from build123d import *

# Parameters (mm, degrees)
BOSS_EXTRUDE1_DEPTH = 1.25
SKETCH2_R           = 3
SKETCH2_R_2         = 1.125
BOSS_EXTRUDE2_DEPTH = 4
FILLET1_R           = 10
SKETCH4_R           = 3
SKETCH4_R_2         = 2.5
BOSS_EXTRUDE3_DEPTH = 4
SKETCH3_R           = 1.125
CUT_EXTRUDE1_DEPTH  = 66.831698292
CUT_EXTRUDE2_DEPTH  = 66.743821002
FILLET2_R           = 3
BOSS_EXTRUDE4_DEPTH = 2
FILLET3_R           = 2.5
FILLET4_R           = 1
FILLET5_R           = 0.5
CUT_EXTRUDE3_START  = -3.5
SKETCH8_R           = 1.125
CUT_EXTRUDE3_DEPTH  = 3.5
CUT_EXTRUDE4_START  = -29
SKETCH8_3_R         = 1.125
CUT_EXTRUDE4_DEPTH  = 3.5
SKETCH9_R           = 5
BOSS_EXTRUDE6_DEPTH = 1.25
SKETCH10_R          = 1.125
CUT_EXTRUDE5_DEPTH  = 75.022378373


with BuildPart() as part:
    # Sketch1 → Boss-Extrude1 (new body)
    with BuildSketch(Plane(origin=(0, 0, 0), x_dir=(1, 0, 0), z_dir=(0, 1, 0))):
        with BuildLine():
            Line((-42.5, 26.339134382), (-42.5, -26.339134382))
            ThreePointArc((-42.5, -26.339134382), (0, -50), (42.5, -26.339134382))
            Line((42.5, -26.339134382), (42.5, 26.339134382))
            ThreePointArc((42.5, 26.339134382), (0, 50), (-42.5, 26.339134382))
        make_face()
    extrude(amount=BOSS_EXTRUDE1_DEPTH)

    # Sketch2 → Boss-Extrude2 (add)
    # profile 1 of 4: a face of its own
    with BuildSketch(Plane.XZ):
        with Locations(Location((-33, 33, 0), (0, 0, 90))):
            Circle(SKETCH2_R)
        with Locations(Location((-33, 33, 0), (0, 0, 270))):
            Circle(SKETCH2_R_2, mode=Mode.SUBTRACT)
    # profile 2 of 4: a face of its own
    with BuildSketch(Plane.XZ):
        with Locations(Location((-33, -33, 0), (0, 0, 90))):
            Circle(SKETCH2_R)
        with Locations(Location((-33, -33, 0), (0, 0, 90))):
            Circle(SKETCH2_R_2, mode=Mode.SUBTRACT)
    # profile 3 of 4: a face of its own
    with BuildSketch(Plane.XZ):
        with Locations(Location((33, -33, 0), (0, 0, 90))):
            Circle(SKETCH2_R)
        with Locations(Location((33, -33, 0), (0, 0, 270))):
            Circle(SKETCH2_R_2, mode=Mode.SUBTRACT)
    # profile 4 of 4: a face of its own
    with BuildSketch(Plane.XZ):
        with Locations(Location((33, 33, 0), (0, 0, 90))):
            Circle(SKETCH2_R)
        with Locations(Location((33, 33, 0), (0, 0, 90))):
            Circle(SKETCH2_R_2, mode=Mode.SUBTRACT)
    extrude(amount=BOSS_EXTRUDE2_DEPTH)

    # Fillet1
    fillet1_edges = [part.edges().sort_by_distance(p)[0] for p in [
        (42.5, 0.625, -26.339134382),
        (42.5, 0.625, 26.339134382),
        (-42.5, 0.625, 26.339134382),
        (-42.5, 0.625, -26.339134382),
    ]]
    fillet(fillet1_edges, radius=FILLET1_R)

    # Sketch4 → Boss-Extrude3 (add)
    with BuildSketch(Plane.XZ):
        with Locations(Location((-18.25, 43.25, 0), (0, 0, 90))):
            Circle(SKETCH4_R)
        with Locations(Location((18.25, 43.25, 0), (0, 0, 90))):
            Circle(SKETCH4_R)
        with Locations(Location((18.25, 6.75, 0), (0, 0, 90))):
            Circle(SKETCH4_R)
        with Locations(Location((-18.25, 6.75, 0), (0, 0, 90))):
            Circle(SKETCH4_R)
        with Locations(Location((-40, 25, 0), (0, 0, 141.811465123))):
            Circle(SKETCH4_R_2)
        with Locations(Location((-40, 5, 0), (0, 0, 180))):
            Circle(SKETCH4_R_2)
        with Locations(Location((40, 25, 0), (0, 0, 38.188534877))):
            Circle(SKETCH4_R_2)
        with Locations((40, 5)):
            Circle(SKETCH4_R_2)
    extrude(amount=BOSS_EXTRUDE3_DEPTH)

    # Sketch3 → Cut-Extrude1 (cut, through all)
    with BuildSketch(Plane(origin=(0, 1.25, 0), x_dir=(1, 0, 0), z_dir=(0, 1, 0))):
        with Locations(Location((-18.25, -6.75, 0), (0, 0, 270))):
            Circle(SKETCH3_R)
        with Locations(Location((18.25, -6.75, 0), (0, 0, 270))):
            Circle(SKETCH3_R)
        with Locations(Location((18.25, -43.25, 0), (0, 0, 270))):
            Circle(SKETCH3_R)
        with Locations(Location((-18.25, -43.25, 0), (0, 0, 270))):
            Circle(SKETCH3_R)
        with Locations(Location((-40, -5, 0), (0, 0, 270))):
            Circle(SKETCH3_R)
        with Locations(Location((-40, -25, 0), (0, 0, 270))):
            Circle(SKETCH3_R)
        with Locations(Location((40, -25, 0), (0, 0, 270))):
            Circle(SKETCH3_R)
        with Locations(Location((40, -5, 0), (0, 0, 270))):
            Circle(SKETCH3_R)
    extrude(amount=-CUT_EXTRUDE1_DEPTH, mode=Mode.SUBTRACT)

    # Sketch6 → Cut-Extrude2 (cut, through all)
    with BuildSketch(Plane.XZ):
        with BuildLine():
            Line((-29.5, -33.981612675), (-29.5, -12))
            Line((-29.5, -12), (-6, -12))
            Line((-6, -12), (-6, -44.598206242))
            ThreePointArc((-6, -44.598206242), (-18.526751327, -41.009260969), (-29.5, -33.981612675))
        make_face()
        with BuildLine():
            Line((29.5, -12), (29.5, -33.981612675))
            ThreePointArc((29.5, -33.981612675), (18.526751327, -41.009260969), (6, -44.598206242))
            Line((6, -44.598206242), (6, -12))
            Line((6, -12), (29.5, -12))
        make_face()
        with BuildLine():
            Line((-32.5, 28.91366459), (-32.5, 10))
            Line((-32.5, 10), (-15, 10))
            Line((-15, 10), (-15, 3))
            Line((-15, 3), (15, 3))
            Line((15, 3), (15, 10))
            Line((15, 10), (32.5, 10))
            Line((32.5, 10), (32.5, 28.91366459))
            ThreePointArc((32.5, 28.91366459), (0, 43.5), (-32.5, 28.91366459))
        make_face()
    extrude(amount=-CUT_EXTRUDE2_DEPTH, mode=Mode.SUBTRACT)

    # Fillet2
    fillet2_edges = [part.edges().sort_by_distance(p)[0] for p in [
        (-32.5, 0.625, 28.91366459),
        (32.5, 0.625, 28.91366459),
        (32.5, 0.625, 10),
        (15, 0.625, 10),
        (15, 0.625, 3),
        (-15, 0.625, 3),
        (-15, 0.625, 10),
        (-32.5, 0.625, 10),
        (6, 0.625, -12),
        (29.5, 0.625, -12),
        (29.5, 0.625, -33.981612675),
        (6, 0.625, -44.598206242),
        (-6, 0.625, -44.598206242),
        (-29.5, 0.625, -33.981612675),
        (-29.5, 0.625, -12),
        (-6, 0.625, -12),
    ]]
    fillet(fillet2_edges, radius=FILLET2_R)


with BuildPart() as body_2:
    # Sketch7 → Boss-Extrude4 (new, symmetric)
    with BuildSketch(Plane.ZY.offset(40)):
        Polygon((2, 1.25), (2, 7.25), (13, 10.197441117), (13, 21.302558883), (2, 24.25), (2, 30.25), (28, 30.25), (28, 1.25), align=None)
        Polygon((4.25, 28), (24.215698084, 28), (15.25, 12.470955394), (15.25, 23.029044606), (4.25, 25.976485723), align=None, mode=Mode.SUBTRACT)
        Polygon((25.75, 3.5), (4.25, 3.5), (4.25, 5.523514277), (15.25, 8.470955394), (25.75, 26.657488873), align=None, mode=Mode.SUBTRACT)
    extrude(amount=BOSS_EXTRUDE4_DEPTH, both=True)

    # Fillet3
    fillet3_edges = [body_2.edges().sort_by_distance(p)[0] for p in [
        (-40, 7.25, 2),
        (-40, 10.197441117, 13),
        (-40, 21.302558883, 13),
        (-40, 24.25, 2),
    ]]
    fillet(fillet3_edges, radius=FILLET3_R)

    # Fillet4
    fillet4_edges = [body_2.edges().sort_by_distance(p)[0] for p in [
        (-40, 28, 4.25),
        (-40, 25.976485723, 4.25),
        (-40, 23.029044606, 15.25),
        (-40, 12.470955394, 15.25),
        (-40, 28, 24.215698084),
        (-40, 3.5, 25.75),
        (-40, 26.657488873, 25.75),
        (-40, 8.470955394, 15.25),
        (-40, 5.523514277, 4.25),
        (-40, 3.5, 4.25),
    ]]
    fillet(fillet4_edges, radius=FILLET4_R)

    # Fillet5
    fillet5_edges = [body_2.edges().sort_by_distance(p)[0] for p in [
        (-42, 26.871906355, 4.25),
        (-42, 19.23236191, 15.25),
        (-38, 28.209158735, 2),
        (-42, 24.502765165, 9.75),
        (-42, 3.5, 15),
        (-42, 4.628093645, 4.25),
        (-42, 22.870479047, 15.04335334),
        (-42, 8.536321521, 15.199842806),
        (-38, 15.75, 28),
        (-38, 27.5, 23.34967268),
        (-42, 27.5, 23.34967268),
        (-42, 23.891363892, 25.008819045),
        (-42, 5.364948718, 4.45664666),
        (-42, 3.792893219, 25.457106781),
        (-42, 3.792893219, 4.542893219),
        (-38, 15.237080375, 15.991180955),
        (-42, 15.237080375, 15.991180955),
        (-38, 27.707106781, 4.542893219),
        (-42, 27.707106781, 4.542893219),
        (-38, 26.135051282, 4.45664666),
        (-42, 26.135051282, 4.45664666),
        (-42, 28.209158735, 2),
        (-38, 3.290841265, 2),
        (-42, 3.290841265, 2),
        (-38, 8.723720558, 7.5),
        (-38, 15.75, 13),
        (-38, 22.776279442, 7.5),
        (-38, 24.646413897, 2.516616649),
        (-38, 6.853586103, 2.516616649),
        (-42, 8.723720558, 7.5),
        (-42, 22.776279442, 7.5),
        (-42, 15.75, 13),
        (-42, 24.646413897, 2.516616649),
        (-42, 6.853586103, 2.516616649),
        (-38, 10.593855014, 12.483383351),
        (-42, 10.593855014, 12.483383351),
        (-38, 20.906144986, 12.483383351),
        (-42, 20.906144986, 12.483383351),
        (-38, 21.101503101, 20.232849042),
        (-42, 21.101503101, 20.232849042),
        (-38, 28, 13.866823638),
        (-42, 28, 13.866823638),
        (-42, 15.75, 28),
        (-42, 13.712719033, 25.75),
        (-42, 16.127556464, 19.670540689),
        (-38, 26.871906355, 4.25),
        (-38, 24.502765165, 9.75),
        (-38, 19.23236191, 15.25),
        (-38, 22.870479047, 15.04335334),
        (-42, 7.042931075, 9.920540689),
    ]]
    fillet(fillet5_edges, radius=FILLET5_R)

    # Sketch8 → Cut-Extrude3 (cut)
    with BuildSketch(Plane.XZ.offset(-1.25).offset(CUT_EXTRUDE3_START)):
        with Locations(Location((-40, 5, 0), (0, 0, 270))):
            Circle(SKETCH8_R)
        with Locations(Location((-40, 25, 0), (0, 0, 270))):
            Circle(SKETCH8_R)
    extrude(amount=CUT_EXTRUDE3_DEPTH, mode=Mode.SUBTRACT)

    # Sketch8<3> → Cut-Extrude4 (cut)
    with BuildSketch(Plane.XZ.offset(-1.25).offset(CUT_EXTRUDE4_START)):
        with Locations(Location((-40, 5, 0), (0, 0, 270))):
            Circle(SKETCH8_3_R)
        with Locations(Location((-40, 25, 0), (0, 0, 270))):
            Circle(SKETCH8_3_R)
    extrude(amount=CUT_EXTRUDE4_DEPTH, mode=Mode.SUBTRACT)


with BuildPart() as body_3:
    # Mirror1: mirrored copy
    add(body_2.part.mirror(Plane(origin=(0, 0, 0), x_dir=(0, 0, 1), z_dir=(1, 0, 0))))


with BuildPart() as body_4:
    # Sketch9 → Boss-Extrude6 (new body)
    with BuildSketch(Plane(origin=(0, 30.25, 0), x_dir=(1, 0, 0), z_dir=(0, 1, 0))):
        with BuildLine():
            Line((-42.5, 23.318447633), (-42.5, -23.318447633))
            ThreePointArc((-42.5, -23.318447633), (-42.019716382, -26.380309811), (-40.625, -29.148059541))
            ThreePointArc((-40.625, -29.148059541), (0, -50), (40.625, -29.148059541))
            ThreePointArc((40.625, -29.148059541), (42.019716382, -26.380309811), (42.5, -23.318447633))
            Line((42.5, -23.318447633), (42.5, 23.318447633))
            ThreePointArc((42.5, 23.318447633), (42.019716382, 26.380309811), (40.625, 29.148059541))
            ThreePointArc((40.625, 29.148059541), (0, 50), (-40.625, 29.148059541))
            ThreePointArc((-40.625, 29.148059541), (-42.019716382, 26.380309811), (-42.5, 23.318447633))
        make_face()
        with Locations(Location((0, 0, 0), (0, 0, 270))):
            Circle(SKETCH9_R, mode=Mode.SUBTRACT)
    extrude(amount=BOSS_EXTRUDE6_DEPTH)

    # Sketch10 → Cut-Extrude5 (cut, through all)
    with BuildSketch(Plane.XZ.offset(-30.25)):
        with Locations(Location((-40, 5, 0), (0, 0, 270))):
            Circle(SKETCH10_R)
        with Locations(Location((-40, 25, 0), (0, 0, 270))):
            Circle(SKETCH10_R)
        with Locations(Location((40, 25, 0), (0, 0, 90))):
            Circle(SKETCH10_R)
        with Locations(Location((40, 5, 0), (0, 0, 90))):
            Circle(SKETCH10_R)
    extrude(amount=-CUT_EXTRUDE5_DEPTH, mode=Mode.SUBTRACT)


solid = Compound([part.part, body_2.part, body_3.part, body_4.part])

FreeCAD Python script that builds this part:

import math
import FreeCAD as App
import Part
import Sketcher

V = App.Vector
Q = App.Units.Quantity


def edges_at(feature, points):
    """Names of the edges that pass closest to the given points."""
    edges = feature.Shape.Edges
    near = lambda p: min(range(len(edges)), key=lambda i: edges[i].distToShape(Part.Vertex(*p))[0])
    return sorted({f"Edge{near(p) + 1}" for p in points})

doc = App.newDocument("Part")
body = doc.addObject("PartDesign::Body", "Body")

sketch1 = body.newObject("Sketcher::SketchObject", "Sketch")
sketch1.AttachmentSupport = (doc.getObject("XZ_Plane"), [""])
sketch1.MapMode = "FlatFace"
sketch1.addGeometry([
    Part.LineSegment(V(-42.5, -26.339134, 0), V(-42.5, 26.339134, 0)),
    Part.ArcOfCircle(Part.Circle(V(0, 0, 0), V(0, 0, 1), 50), math.radians(31.788331), math.radians(148.211669)),
    Part.LineSegment(V(42.5, 26.339134, 0), V(42.5, -26.339134, 0)),
    Part.ArcOfCircle(Part.Circle(V(0, 0, 0), V(0, 0, 1), 50), math.radians(-148.211669), math.radians(-31.788331)),
], False)
sketch1.addConstraint([
    Sketcher.Constraint("Coincident", 0, 2, 1, 2),
    Sketcher.Constraint("Coincident", 1, 1, 2, 1),
    Sketcher.Constraint("Coincident", 2, 2, 3, 2),
    Sketcher.Constraint("Coincident", 3, 1, 0, 1),
    Sketcher.Constraint("Vertical", 0),
    Sketcher.Constraint("Vertical", 2),
    Sketcher.Constraint("Coincident", 1, 3, -1, 1),
    Sketcher.Constraint("Coincident", 3, 3, -1, 1),
    Sketcher.Constraint("Equal", 1, 3),
    Sketcher.Constraint("Horizontal", 0, 2, 1, 1),
    Sketcher.Constraint("Radius", 1, Q("50 mm")),
    Sketcher.Constraint("DistanceX", 0, 2, 1, 1, Q("85 mm")),
])
pad1 = body.newObject("PartDesign::Pad", "Pad")
pad1.Profile = sketch1
pad1.Length = 1.25
pad1.Reversed = True

sketch2 = body.newObject("Sketcher::SketchObject", "Sketch001")
sketch2.AttachmentSupport = (doc.getObject("XZ_Plane"), [""])
sketch2.MapMode = "FlatFace"
sketch2.addGeometry([
    Part.Circle(V(-33, 33, 0), V(0, 0, 1), 3),
    Part.Circle(V(-33, 33, 0), V(0, 0, 1), 1.125),
    Part.Circle(V(-33, -33, 0), V(0, 0, 1), 3),
    Part.Circle(V(-33, -33, 0), V(0, 0, 1), 1.125),
    Part.Circle(V(33, -33, 0), V(0, 0, 1), 3),
    Part.Circle(V(33, -33, 0), V(0, 0, 1), 1.125),
    Part.Circle(V(33, 33, 0), V(0, 0, 1), 3),
    Part.Circle(V(33, 33, 0), V(0, 0, 1), 1.125),
], False)
sketch2.addConstraint([
    Sketcher.Constraint("Coincident", 1, 3, 0, 3),
    Sketcher.Constraint("Coincident", 3, 3, 2, 3),
    Sketcher.Constraint("Coincident", 5, 3, 4, 3),
    Sketcher.Constraint("Coincident", 7, 3, 6, 3),
    Sketcher.Constraint("Equal", 0, 2),
    Sketcher.Constraint("Equal", 1, 3),
    Sketcher.Constraint("Equal", 2, 4),
    Sketcher.Constraint("Equal", 3, 5),
    Sketcher.Constraint("Equal", 4, 6),
    Sketcher.Constraint("Equal", 5, 7),
    Sketcher.Constraint("Symmetric", 0, 3, 4, 3, -1, 1),
    Sketcher.Constraint("Symmetric", 2, 3, 6, 3, -1, 1),
    Sketcher.Constraint("Symmetric", 2, 3, 4, 3, -2),
    Sketcher.Constraint("Diameter", 0, Q("6 mm")),
    Sketcher.Constraint("Diameter", 1, Q("2.25 mm")),
    Sketcher.Constraint("DistanceX", 0, 3, -1, 1, Q("33 mm")),
    Sketcher.Constraint("DistanceY", -1, 1, 0, 3, Q("33 mm")),
])
pad2 = body.newObject("PartDesign::Pad", "Pad001")
pad2.Profile = sketch2
pad2.Length = 4
doc.recompute()

fillet = body.newObject("PartDesign::Fillet", "Fillet")
fillet.Base = (pad2, edges_at(pad2, [
    (42.5, 0.625, -26.339),
    (42.5, 0.625, 26.339),
    (-42.5, 0.625, 26.339),
    (-42.5, 0.625, -26.339),
]))
fillet.Radius = 10

sketch3 = body.newObject("Sketcher::SketchObject", "Sketch002")
sketch3.AttachmentSupport = (doc.getObject("XZ_Plane"), [""])
sketch3.MapMode = "FlatFace"
sketch3.addGeometry([
    Part.Circle(V(-18.25, 43.25, 0), V(0, 0, 1), 3),
    Part.Circle(V(18.25, 43.25, 0), V(0, 0, 1), 3),
    Part.Circle(V(18.25, 6.75, 0), V(0, 0, 1), 3),
    Part.Circle(V(-18.25, 6.75, 0), V(0, 0, 1), 3),
    Part.Circle(V(-40, 25, 0), V(0, 0, 1), 2.5),
    Part.Circle(V(-40, 5, 0), V(0, 0, 1), 2.5),
    Part.Circle(V(40, 25, 0), V(0, 0, 1), 2.5),
    Part.Circle(V(40, 5, 0), V(0, 0, 1), 2.5),
], False)
sketch3.addConstraint([
    Sketcher.Constraint("Equal", 0, 1),
    Sketcher.Constraint("Equal", 1, 2),
    Sketcher.Constraint("Equal", 2, 3),
    Sketcher.Constraint("Equal", 4, 5),
    Sketcher.Constraint("Equal", 5, 6),
    Sketcher.Constraint("Equal", 6, 7),
    Sketcher.Constraint("Symmetric", 0, 3, 1, 3, -2),
    Sketcher.Constraint("Symmetric", 2, 3, 3, 3, -2),
    Sketcher.Constraint("Symmetric", 4, 3, 6, 3, -2),
    Sketcher.Constraint("Symmetric", 5, 3, 7, 3, -2),
    Sketcher.Constraint("Vertical", 1, 3, 2, 3),
    Sketcher.Constraint("Vertical", 4, 3, 5, 3),
    Sketcher.Constraint("Diameter", 0, Q("6 mm")),
    Sketcher.Constraint("Diameter", 4, Q("5 mm")),
    Sketcher.Constraint("DistanceX", 4, 3, -1, 1, Q("40 mm")),
    Sketcher.Constraint("DistanceY", -1, 1, 4, 3, Q("25 mm")),
    Sketcher.Constraint("DistanceY", -1, 1, 5, 3, Q("5 mm")),
    Sketcher.Constraint("DistanceX", 0, 3, 1, 3, Q("36.5 mm")),
    Sketcher.Constraint("DistanceY", 2, 3, 1, 3, Q("36.5 mm")),
    Sketcher.Constraint("DistanceY", -1, 1, 0, 3, Q("43.25 mm")),
])
pad3 = body.newObject("PartDesign::Pad", "Pad002")
pad3.Profile = sketch3
pad3.Length = 4

sketch4 = body.newObject("Sketcher::SketchObject", "Sketch003")
sketch4.AttachmentSupport = (doc.getObject("XZ_Plane"), [""])
sketch4.MapMode = "FlatFace"
sketch4.AttachmentOffset = App.Placement(V(0, 0, -1.25), App.Rotation())
sketch4.addGeometry([
    Part.Circle(V(-18.25, 6.75, 0), V(0, 0, 1), 1.125),
    Part.Circle(V(18.25, 6.75, 0), V(0, 0, 1), 1.125),
    Part.Circle(V(18.25, 43.25, 0), V(0, 0, 1), 1.125),
    Part.Circle(V(-18.25, 43.25, 0), V(0, 0, 1), 1.125),
    Part.Circle(V(-40, 5, 0), V(0, 0, 1), 1.125),
    Part.Circle(V(-40, 25, 0), V(0, 0, 1), 1.125),
    Part.Circle(V(40, 25, 0), V(0, 0, 1), 1.125),
    Part.Circle(V(40, 5, 0), V(0, 0, 1), 1.125),
], False)
sketch4.addConstraint([
    Sketcher.Constraint("Equal", 0, 1),
    Sketcher.Constraint("Equal", 1, 2),
    Sketcher.Constraint("Equal", 2, 3),
    Sketcher.Constraint("Equal", 3, 4),
    Sketcher.Constraint("Equal", 4, 5),
    Sketcher.Constraint("Equal", 5, 6),
    Sketcher.Constraint("Equal", 6, 7),
    Sketcher.Constraint("Symmetric", 0, 3, 1, 3, -2),
    Sketcher.Constraint("Symmetric", 2, 3, 3, 3, -2),
    Sketcher.Constraint("Symmetric", 5, 3, 6, 3, -2),
    Sketcher.Constraint("Symmetric", 4, 3, 7, 3, -2),
    Sketcher.Constraint("Vertical", 1, 3, 2, 3),
    Sketcher.Constraint("Vertical", 4, 3, 5, 3),
    Sketcher.Constraint("Diameter", 0, Q("2.25 mm")),
    Sketcher.Constraint("DistanceX", 4, 3, -1, 1, Q("40 mm")),
    Sketcher.Constraint("DistanceY", -1, 1, 4, 3, Q("5 mm")),
    Sketcher.Constraint("DistanceY", -1, 1, 5, 3, Q("25 mm")),
    Sketcher.Constraint("DistanceX", 0, 3, 1, 3, Q("36.5 mm")),
    Sketcher.Constraint("DistanceY", 1, 3, 2, 3, Q("36.5 mm")),
    Sketcher.Constraint("DistanceY", -1, 1, 0, 3, Q("6.75 mm")),
])
pocket1 = body.newObject("PartDesign::Pocket", "Pocket")
pocket1.Profile = sketch4
pocket1.Type = "ThroughAll"
pocket1.Reversed = True

sketch5 = body.newObject("Sketcher::SketchObject", "Sketch004")
sketch5.AttachmentSupport = (doc.getObject("XZ_Plane"), [""])
sketch5.MapMode = "FlatFace"
sketch5.addGeometry([
    Part.LineSegment(V(-29.5, -12, 0), V(-29.5, -33.981613, 0)),
    Part.ArcOfCircle(Part.Circle(V(0, 0, 0), V(0, 0, 1), 45), math.radians(-130.961789), math.radians(-97.662256)),
    Part.LineSegment(V(-6, -44.598206, 0), V(-6, -12, 0)),
    Part.LineSegment(V(-6, -12, 0), V(-29.5, -12, 0)),
    Part.LineSegment(V(29.5, -33.981613, 0), V(29.5, -12, 0)),
    Part.LineSegment(V(29.5, -12, 0), V(6, -12, 0)),
    Part.LineSegment(V(6, -12, 0), V(6, -44.598206, 0)),
    Part.ArcOfCircle(Part.Circle(V(0, 0, 0), V(0, 0, 1), 45), math.radians(-82.337744), math.radians(-49.038211)),
    Part.LineSegment(V(-32.5, 28.913665, 0), V(-32.5, 10, 0)),
    Part.LineSegment(V(-32.5, 10, 0), V(-15, 10, 0)),
    Part.LineSegment(V(-15, 10, 0), V(-15, 3, 0)),
    Part.LineSegment(V(-15, 3, 0), V(15, 3, 0)),
    Part.LineSegment(V(15, 3, 0), V(15, 10, 0)),
    Part.LineSegment(V(15, 10, 0), V(32.5, 10, 0)),
    Part.LineSegment(V(32.5, 10, 0), V(32.5, 28.913665, 0)),
    Part.ArcOfCircle(Part.Circle(V(0, 0, 0), V(0, 0, 1), 43.5), math.radians(41.65793), math.radians(138.34207)),
], False)
sketch5.addConstraint([
    Sketcher.Constraint("Coincident", 0, 2, 1, 1),
    Sketcher.Constraint("Coincident", 1, 2, 2, 1),
    Sketcher.Constraint("Coincident", 2, 2, 3, 1),
    Sketcher.Constraint("Coincident", 3, 2, 0, 1),
    Sketcher.Constraint("Coincident", 4, 2, 5, 1),
    Sketcher.Constraint("Coincident", 5, 2, 6, 1),
    Sketcher.Constraint("Coincident", 6, 2, 7, 1),
    Sketcher.Constraint("Coincident", 7, 2, 4, 1),
    Sketcher.Constraint("Coincident", 8, 2, 9, 1),
    Sketcher.Constraint("Coincident", 9, 2, 10, 1),
    Sketcher.Constraint("Coincident", 10, 2, 11, 1),
    Sketcher.Constraint("Coincident", 11, 2, 12, 1),
    Sketcher.Constraint("Coincident", 12, 2, 13, 1),
    Sketcher.Constraint("Coincident", 13, 2, 14, 1),
    Sketcher.Constraint("Coincident", 14, 2, 15, 1),
    Sketcher.Constraint("Coincident", 15, 2, 8, 1),
    Sketcher.Constraint("Vertical", 0),
    Sketcher.Constraint("Vertical", 2),
    Sketcher.Constraint("Horizontal", 3),
    Sketcher.Constraint("Vertical", 4),
    Sketcher.Constraint("Horizontal", 5),
    Sketcher.Constraint("Vertical", 6),
    Sketcher.Constraint("Vertical", 8),
    Sketcher.Constraint("Horizontal", 9),
    Sketcher.Constraint("Vertical", 10),
    Sketcher.Constraint("Horizontal", 11),
    Sketcher.Constraint("Vertical", 12),
    Sketcher.Constraint("Horizontal", 13),
    Sketcher.Constraint("Vertical", 14),
    Sketcher.Constraint("Coincident", 1, 3, -1, 1),
    Sketcher.Constraint("Coincident", 7, 3, -1, 1),
    Sketcher.Constraint("Coincident", 15, 3, -1, 1),
    Sketcher.Constraint("Equal", 1, 7),
    Sketcher.Constraint("Symmetric", 3, 2, 4, 2, -2),
    Sketcher.Constraint("Symmetric", 9, 2, 12, 2, -2),
    Sketcher.Constraint("Horizontal", 1, 2, 6, 2),
    Sketcher.Constraint("Horizontal", 14, 2, 15, 2),
    Sketcher.Constraint("Radius", 1, Q("45 mm")),
    Sketcher.Constraint("Radius", 15, Q("43.5 mm")),
    Sketcher.Constraint("DistanceX", 11, 1, 11, 2, Q("30 mm")),
    Sketcher.Constraint("DistanceY", 10, 2, 10, 1, Q("7 mm")),
    Sketcher.Constraint("DistanceX", 3, 2, 3, 1, Q("23.5 mm")),
    Sketcher.Constraint("DistanceX", 9, 1, 9, 2, Q("17.5 mm")),
    Sketcher.Constraint("DistanceX", 1, 2, -1, 1, Q("6 mm")),
    Sketcher.Constraint("DistanceY", 2, 2, -1, 1, Q("12 mm")),
    Sketcher.Constraint("DistanceY", -1, 1, 8, 2, Q("10 mm")),
])
pocket2 = body.newObject("PartDesign::Pocket", "Pocket001")
pocket2.Profile = sketch5
pocket2.Type = "ThroughAll"
doc.recompute()

fillet2 = body.newObject("PartDesign::Fillet", "Fillet001")
fillet2.Base = (pocket2, edges_at(pocket2, [
    (-32.5, 0.625, 28.914),
    (32.5, 0.625, 28.914),
    (32.5, 0.625, 10),
    (15, 0.625, 10),
    (15, 0.625, 3),
    (-15, 0.625, 3),
    (-15, 0.625, 10),
    (-32.5, 0.625, 10),
    (6, 0.625, -12),
    (29.5, 0.625, -12),
    (29.5, 0.625, -33.982),
    (6, 0.625, -44.598),
    (-6, 0.625, -44.598),
    (-29.5, 0.625, -33.982),
    (-29.5, 0.625, -12),
    (-6, 0.625, -12),
]))
fillet2.Radius = 3
body2 = doc.addObject("PartDesign::Body", "Body001")

sketch6 = body2.newObject("Sketcher::SketchObject", "Sketch005")
sketch6.AttachmentSupport = (doc.getObject("YZ_Plane001"), [""])
sketch6.MapMode = "FlatFace"
sketch6.AttachmentOffset = App.Placement(V(0, 0, -40), App.Rotation())
sketch6.addGeometry([
    Part.LineSegment(V(7.25, 2, 0), V(1.25, 2, 0)),
    Part.LineSegment(V(1.25, 2, 0), V(1.25, 28, 0)),
    Part.LineSegment(V(1.25, 28, 0), V(30.25, 28, 0)),
    Part.LineSegment(V(30.25, 28, 0), V(30.25, 2, 0)),
    Part.LineSegment(V(30.25, 2, 0), V(24.25, 2, 0)),
    Part.LineSegment(V(24.25, 2, 0), V(21.302559, 13, 0)),
    Part.LineSegment(V(21.302559, 13, 0), V(10.197441, 13, 0)),
    Part.LineSegment(V(10.197441, 13, 0), V(7.25, 2, 0)),
    Part.LineSegment(V(3.5, 25.75, 0), V(3.5, 4.25, 0)),
    Part.LineSegment(V(3.5, 4.25, 0), V(5.523514, 4.25, 0)),
    Part.LineSegment(V(5.523514, 4.25, 0), V(8.470955, 15.25, 0)),
    Part.LineSegment(V(8.470955, 15.25, 0), V(26.657489, 25.75, 0)),
    Part.LineSegment(V(26.657489, 25.75, 0), V(3.5, 25.75, 0)),
    Part.LineSegment(V(28, 4.25, 0), V(28, 24.215698, 0)),
    Part.LineSegment(V(28, 24.215698, 0), V(12.470955, 15.25, 0)),
    Part.LineSegment(V(12.470955, 15.25, 0), V(23.029045, 15.25, 0)),
    Part.LineSegment(V(23.029045, 15.25, 0), V(25.976486, 4.25, 0)),
    Part.LineSegment(V(25.976486, 4.25, 0), V(28, 4.25, 0)),
], False)
sketch6.addConstraint([
    Sketcher.Constraint("Coincident", 0, 2, 1, 1),
    Sketcher.Constraint("Coincident", 1, 2, 2, 1),
    Sketcher.Constraint("Coincident", 2, 2, 3, 1),
    Sketcher.Constraint("Coincident", 3, 2, 4, 1),
    Sketcher.Constraint("Coincident", 4, 2, 5, 1),
    Sketcher.Constraint("Coincident", 5, 2, 6, 1),
    Sketcher.Constraint("Coincident", 6, 2, 7, 1),
    Sketcher.Constraint("Coincident", 7, 2, 0, 1),
    Sketcher.Constraint("Coincident", 8, 2, 9, 1),
    Sketcher.Constraint("Coincident", 9, 2, 10, 1),
    Sketcher.Constraint("Coincident", 10, 2, 11, 1),
    Sketcher.Constraint("Coincident", 11, 2, 12, 1),
    Sketcher.Constraint("Coincident", 12, 2, 8, 1),
    Sketcher.Constraint("Coincident", 13, 2, 14, 1),
    Sketcher.Constraint("Coincident", 14, 2, 15, 1),
    Sketcher.Constraint("Coincident", 15, 2, 16, 1),
    Sketcher.Constraint("Coincident", 16, 2, 17, 1),
    Sketcher.Constraint("Coincident", 17, 2, 13, 1),
    Sketcher.Constraint("Horizontal", 0),
    Sketcher.Constraint("Vertical", 1),
    Sketcher.Constraint("Horizontal", 2),
    Sketcher.Constraint("Vertical", 3),
    Sketcher.Constraint("Horizontal", 4),
    Sketcher.Constraint("Horizontal", 6),
    Sketcher.Constraint("Vertical", 8),
    Sketcher.Constraint("Horizontal", 9),
    Sketcher.Constraint("Horizontal", 12),
    Sketcher.Constraint("Vertical", 13),
    Sketcher.Constraint("Horizontal", 15),
    Sketcher.Constraint("Horizontal", 17),
    Sketcher.Constraint("Parallel", 7, 10),
    Sketcher.Constraint("Parallel", 11, 14),
    Sketcher.Constraint("Parallel", 5, 16),
    Sketcher.Constraint("Horizontal", 0, 2, 3, 2),
    Sketcher.Constraint("Horizontal", 10, 2, 14, 2),
    Sketcher.Constraint("Horizontal", 9, 2, 16, 2),
    Sketcher.Constraint("Equal", 0, 4),
    Sketcher.Constraint("Equal", 9, 17),
    Sketcher.Constraint("Equal", 5, 7),
    Sketcher.Constraint("Equal", 7, 10),
    Sketcher.Constraint("DistanceX", 0, 2, 0, 1, Q("6 mm")),
    Sketcher.Constraint("DistanceX", 2, 1, 2, 2, Q("29 mm")),
    Sketcher.Constraint("DistanceY", 1, 1, 1, 2, Q("26 mm")),
    Sketcher.Constraint("Angle", 5, Q("105 deg")),
    Sketcher.Constraint("Angle", 11, Q("30 deg")),
    Sketcher.Constraint("Distance", 11, Q("21 mm")),
    Sketcher.Constraint("DistanceY", 8, 2, 8, 1, Q("21.5 mm")),
    Sketcher.Constraint("DistanceY", -1, 1, 0, 2, Q("2 mm")),
    Sketcher.Constraint("DistanceX", -1, 1, 13, 2, Q("28 mm")),
    Sketcher.Constraint("DistanceX", 10, 2, 14, 2, Q("4 mm")),
    Sketcher.Constraint("DistanceX", -1, 1, 8, 2, Q("3.5 mm")),
    Sketcher.Constraint("DistanceX", -1, 1, 0, 2, Q("1.25 mm")),
    Sketcher.Constraint("DistanceY", -1, 1, 8, 2, Q("4.25 mm")),
    Sketcher.Constraint("DistanceY", 13, 1, 13, 2, Q("19.965698 mm")),
])
pad4 = body2.newObject("PartDesign::Pad", "Pad003")
pad4.Profile = sketch6
pad4.Length = 4
pad4.Midplane = True
doc.recompute()

fillet3 = body2.newObject("PartDesign::Fillet", "Fillet002")
fillet3.Base = (pad4, edges_at(pad4, [
    (-40, 7.25, 2),
    (-40, 10.197, 13),
    (-40, 21.303, 13),
    (-40, 24.25, 2),
]))
fillet3.Radius = 2.5
doc.recompute()

fillet4 = body2.newObject("PartDesign::Fillet", "Fillet003")
fillet4.Base = (fillet3, edges_at(fillet3, [
    (-40, 28, 4.25),
    (-40, 25.976, 4.25),
    (-40, 23.029, 15.25),
    (-40, 12.471, 15.25),
    (-40, 28, 24.216),
    (-40, 3.5, 25.75),
    (-40, 26.657, 25.75),
    (-40, 8.471, 15.25),
    (-40, 5.524, 4.25),
    (-40, 3.5, 4.25),
]))
fillet4.Radius = 1
doc.recompute()

fillet5 = body2.newObject("PartDesign::Fillet", "Fillet004")
fillet5.Base = (fillet4, edges_at(fillet4, [
    (-42, 26.872, 4.25),
    (-42, 19.232, 15.25),
    (-38, 28.209, 2),
    (-42, 24.503, 9.75),
    (-42, 3.5, 15),
    (-42, 4.628, 4.25),
    (-42, 22.87, 15.043),
    (-42, 8.536, 15.2),
    (-38, 15.75, 28),
    (-38, 27.5, 23.35),
    (-42, 27.5, 23.35),
    (-42, 23.891, 25.009),
    (-42, 5.365, 4.457),
    (-42, 3.793, 25.457),
    (-42, 3.793, 4.543),
    (-38, 15.237, 15.991),
    (-42, 15.237, 15.991),
    (-38, 27.707, 4.543),
    (-42, 27.707, 4.543),
    (-38, 26.135, 4.457),
    (-42, 26.135, 4.457),
    (-42, 28.209, 2),
    (-38, 3.291, 2),
    (-42, 3.291, 2),
    (-38, 8.724, 7.5),
    (-38, 15.75, 13),
    (-38, 22.776, 7.5),
    (-38, 24.646, 2.517),
    (-38, 6.854, 2.517),
    (-42, 8.724, 7.5),
    (-42, 22.776, 7.5),
    (-42, 15.75, 13),
    (-42, 24.646, 2.517),
    (-42, 6.854, 2.517),
    (-38, 10.594, 12.483),
    (-42, 10.594, 12.483),
    (-38, 20.906, 12.483),
    (-42, 20.906, 12.483),
    (-38, 21.102, 20.233),
    (-42, 21.102, 20.233),
    (-38, 28, 13.867),
    (-42, 28, 13.867),
    (-42, 15.75, 28),
    (-42, 13.713, 25.75),
    (-42, 16.128, 19.671),
    (-38, 26.872, 4.25),
    (-38, 24.503, 9.75),
    (-38, 19.232, 15.25),
    (-38, 22.87, 15.043),
    (-42, 7.043, 9.921),
]))
fillet5.Radius = 0.5

sketch7 = body2.newObject("Sketcher::SketchObject", "Sketch006")
sketch7.AttachmentSupport = (doc.getObject("XZ_Plane001"), [""])
sketch7.MapMode = "FlatFace"
sketch7.AttachmentOffset = App.Placement(V(0, 0, -4.75), App.Rotation())
sketch7.addGeometry([
    Part.Circle(V(-40, 5, 0), V(0, 0, 1), 1.125),
    Part.Circle(V(-40, 25, 0), V(0, 0, 1), 1.125),
], False)
sketch7.addConstraint([
    Sketcher.Constraint("Equal", 0, 1),
    Sketcher.Constraint("Vertical", 0, 3, 1, 3),
    Sketcher.Constraint("Diameter", 0, Q("2.25 mm")),
    Sketcher.Constraint("DistanceX", 0, 3, -1, 1, Q("40 mm")),
    Sketcher.Constraint("DistanceY", -1, 1, 0, 3, Q("5 mm")),
    Sketcher.Constraint("DistanceY", -1, 1, 1, 3, Q("25 mm")),
])
pocket3 = body2.newObject("PartDesign::Pocket", "Pocket002")
pocket3.Profile = sketch7
pocket3.Length = 3.5
pocket3.Reversed = True

sketch8 = body2.newObject("Sketcher::SketchObject", "Sketch007")
sketch8.AttachmentSupport = (doc.getObject("XZ_Plane001"), [""])
sketch8.MapMode = "FlatFace"
sketch8.AttachmentOffset = App.Placement(V(0, 0, -30.25), App.Rotation())
sketch8.addGeometry([
    Part.Circle(V(-40, 5, 0), V(0, 0, 1), 1.125),
    Part.Circle(V(-40, 25, 0), V(0, 0, 1), 1.125),
], False)
sketch8.addConstraint([
    Sketcher.Constraint("Equal", 0, 1),
    Sketcher.Constraint("Vertical", 0, 3, 1, 3),
    Sketcher.Constraint("Diameter", 0, Q("2.25 mm")),
    Sketcher.Constraint("DistanceX", 0, 3, -1, 1, Q("40 mm")),
    Sketcher.Constraint("DistanceY", -1, 1, 0, 3, Q("5 mm")),
    Sketcher.Constraint("DistanceY", -1, 1, 1, 3, Q("25 mm")),
])
pocket4 = body2.newObject("PartDesign::Pocket", "Pocket003")
pocket4.Profile = sketch8
pocket4.Length = 3.5
pocket4.Reversed = True
body3 = doc.addObject("PartDesign::Body", "Body002")
doc.recompute()

mirroring = doc.addObject("Part::Mirroring", "Mirroring")
mirroring.Source = body2
mirroring.Base = V(0, 0, 0)
mirroring.Normal = V(1, 0, 0)
body3.BaseFeature = mirroring
doc.recompute()
body4 = doc.addObject("PartDesign::Body", "Body003")

sketch9 = body4.newObject("Sketcher::SketchObject", "Sketch008")
sketch9.AttachmentSupport = (doc.getObject("XZ_Plane003"), [""])
sketch9.MapMode = "FlatFace"
sketch9.AttachmentOffset = App.Placement(V(0, 0, -30.25), App.Rotation())
sketch9.addGeometry([
    Part.LineSegment(V(-42.5, -23.318448, 0), V(-42.5, 23.318448, 0)),
    Part.ArcOfCircle(Part.Circle(V(-32.5, 23.318448, 0), V(0, 0, 1), 10), math.radians(144.340912), math.radians(180)),
    Part.ArcOfCircle(Part.Circle(V(0, 0, 0), V(0, 0, 1), 50), math.radians(35.659088), math.radians(144.340912)),
    Part.ArcOfCircle(Part.Circle(V(32.5, 23.318448, 0), V(0, 0, 1), 10), math.radians(0), math.radians(35.659088)),
    Part.LineSegment(V(42.5, 23.318448, 0), V(42.5, -23.318448, 0)),
    Part.ArcOfCircle(Part.Circle(V(32.5, -23.318448, 0), V(0, 0, 1), 10), math.radians(-35.659088), math.radians(0)),
    Part.ArcOfCircle(Part.Circle(V(0, 0, 0), V(0, 0, 1), 50), math.radians(-144.340912), math.radians(-35.659088)),
    Part.ArcOfCircle(Part.Circle(V(-32.5, -23.318448, 0), V(0, 0, 1), 10), math.radians(-180), math.radians(-144.340912)),
    Part.Circle(V(0, 0, 0), V(0, 0, 1), 5),
], False)
sketch9.addConstraint([
    Sketcher.Constraint("Tangent", 0, 2, 1, 2),
    Sketcher.Constraint("Tangent", 1, 1, 2, 2),
    Sketcher.Constraint("Tangent", 2, 1, 3, 2),
    Sketcher.Constraint("Tangent", 3, 1, 4, 1),
    Sketcher.Constraint("Tangent", 4, 2, 5, 2),
    Sketcher.Constraint("Tangent", 5, 1, 6, 2),
    Sketcher.Constraint("Tangent", 6, 1, 7, 2),
    Sketcher.Constraint("Tangent", 7, 1, 0, 1),
    Sketcher.Constraint("Vertical", 0),
    Sketcher.Constraint("Vertical", 4),
    Sketcher.Constraint("Coincident", 2, 3, -1, 1),
    Sketcher.Constraint("Coincident", 6, 3, -1, 1),
    Sketcher.Constraint("Coincident", 8, 3, -1, 1),
    Sketcher.Constraint("Equal", 1, 3),
    Sketcher.Constraint("Equal", 3, 5),
    Sketcher.Constraint("Equal", 2, 6),
    Sketcher.Constraint("Equal", 5, 7),
    Sketcher.Constraint("Horizontal", 1, 3, 3, 3),
    Sketcher.Constraint("Diameter", 8, Q("10 mm")),
    Sketcher.Constraint("Radius", 1, Q("10 mm")),
    Sketcher.Constraint("Radius", 2, Q("50 mm")),
    Sketcher.Constraint("DistanceX", 1, 3, 3, 3, Q("65 mm")),
])
pad5 = body4.newObject("PartDesign::Pad", "Pad004")
pad5.Profile = sketch9
pad5.Length = 1.25
pad5.Reversed = True

sketch10 = body4.newObject("Sketcher::SketchObject", "Sketch009")
sketch10.AttachmentSupport = (doc.getObject("XZ_Plane003"), [""])
sketch10.MapMode = "FlatFace"
sketch10.AttachmentOffset = App.Placement(V(0, 0, -30.25), App.Rotation())
sketch10.addGeometry([
    Part.Circle(V(-40, 5, 0), V(0, 0, 1), 1.125),
    Part.Circle(V(-40, 25, 0), V(0, 0, 1), 1.125),
    Part.Circle(V(40, 25, 0), V(0, 0, 1), 1.125),
    Part.Circle(V(40, 5, 0), V(0, 0, 1), 1.125),
], False)
sketch10.addConstraint([
    Sketcher.Constraint("Equal", 0, 1),
    Sketcher.Constraint("Equal", 1, 2),
    Sketcher.Constraint("Equal", 2, 3),
    Sketcher.Constraint("Symmetric", 1, 3, 2, 3, -2),
    Sketcher.Constraint("Symmetric", 0, 3, 3, 3, -2),
    Sketcher.Constraint("Vertical", 0, 3, 1, 3),
    Sketcher.Constraint("Diameter", 0, Q("2.25 mm")),
    Sketcher.Constraint("DistanceX", 0, 3, -1, 1, Q("40 mm")),
    Sketcher.Constraint("DistanceY", -1, 1, 0, 3, Q("5 mm")),
    Sketcher.Constraint("DistanceY", -1, 1, 1, 3, Q("25 mm")),
])
pocket5 = body4.newObject("PartDesign::Pocket", "Pocket004")
pocket5.Profile = sketch10
pocket5.Type = "ThroughAll"
mirroring.Visibility = False

doc.recompute()
